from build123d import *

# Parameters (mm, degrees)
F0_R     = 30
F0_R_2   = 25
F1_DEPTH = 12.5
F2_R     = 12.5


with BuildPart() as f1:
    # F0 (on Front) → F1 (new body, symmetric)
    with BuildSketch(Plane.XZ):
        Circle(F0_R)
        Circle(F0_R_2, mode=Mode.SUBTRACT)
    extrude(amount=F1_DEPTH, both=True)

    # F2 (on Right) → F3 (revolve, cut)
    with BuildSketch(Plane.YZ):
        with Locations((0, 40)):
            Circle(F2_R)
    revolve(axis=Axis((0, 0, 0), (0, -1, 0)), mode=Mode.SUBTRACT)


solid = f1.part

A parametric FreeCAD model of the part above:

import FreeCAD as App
import Part
import Sketcher

doc = App.newDocument("Part")
params = doc.addObject("Spreadsheet::Sheet", "Params")
for row, (alias, value) in enumerate([
    ("sketch1_diameter", "60 mm"),
    ("sketch1_diameter2", "50 mm"),
    ("pad1_length", "25 mm"),
    ("sketch2_diameter", "25 mm"),
    ("groove_angle", "360 deg"),
], start=1):
    params.set(f"A{row}", alias)
    params.set(f"B{row}", "=" + value)
    params.setAlias(f"B{row}", alias)

body = doc.addObject("PartDesign::Body", "Body")

sketch1 = body.newObject("Sketcher::SketchObject", "Sketch")
sketch1.AttachmentSupport = (doc.getObject("XZ_Plane"), [""])
sketch1.MapMode = "FlatFace"
sketch1.addGeometry(Part.Circle(App.Vector(0, 0, 0), App.Vector(0, 0, 1), 30), False)
sketch1.addGeometry(Part.Circle(App.Vector(0, 0, 0), App.Vector(0, 0, 1), 25), False)
sketch1.addConstraint(Sketcher.Constraint("Coincident", 0, 3, -1, 1))
sketch1.addConstraint(Sketcher.Constraint("Coincident", 1, 3, -1, 1))
sketch1.addConstraint(Sketcher.Constraint("Diameter", 0, 60.0))
sketch1.addConstraint(Sketcher.Constraint("Diameter", 1, 50.0))
sketch1.setExpression("Constraints[2]", "Params.sketch1_diameter")
sketch1.setExpression("Constraints[3]", "Params.sketch1_diameter2")
pad1 = body.newObject("PartDesign::Pad", "Pad")
pad1.Profile = sketch1
pad1.setExpression("Length", "Params.pad1_length")
pad1.Midplane = True

sketch2 = body.newObject("Sketcher::SketchObject", "Sketch001")
sketch2.AttachmentSupport = (doc.getObject("YZ_Plane"), [""])
sketch2.MapMode = "FlatFace"
sketch2.addGeometry(Part.Circle(App.Vector(0, 40, 0), App.Vector(0, 0, 1), 12), False)
sketch2.addConstraint(Sketcher.Constraint("PointOnObject", 0, 3, -2))
sketch2.addConstraint(Sketcher.Constraint("Diameter", 0, 25.0))
sketch2.addConstraint(Sketcher.Constraint("DistanceY", -1, 1, 0, 3, 40.0))
sketch2.setExpression("Constraints[1]", "Params.sketch2_diameter")
groove = body.newObject("PartDesign::Groove", "Groove")
groove.Profile = sketch2
groove.ReferenceAxis = (sketch2, ["H_Axis"])
groove.setExpression("Angle", "Params.groove_angle")

doc.recompute()
